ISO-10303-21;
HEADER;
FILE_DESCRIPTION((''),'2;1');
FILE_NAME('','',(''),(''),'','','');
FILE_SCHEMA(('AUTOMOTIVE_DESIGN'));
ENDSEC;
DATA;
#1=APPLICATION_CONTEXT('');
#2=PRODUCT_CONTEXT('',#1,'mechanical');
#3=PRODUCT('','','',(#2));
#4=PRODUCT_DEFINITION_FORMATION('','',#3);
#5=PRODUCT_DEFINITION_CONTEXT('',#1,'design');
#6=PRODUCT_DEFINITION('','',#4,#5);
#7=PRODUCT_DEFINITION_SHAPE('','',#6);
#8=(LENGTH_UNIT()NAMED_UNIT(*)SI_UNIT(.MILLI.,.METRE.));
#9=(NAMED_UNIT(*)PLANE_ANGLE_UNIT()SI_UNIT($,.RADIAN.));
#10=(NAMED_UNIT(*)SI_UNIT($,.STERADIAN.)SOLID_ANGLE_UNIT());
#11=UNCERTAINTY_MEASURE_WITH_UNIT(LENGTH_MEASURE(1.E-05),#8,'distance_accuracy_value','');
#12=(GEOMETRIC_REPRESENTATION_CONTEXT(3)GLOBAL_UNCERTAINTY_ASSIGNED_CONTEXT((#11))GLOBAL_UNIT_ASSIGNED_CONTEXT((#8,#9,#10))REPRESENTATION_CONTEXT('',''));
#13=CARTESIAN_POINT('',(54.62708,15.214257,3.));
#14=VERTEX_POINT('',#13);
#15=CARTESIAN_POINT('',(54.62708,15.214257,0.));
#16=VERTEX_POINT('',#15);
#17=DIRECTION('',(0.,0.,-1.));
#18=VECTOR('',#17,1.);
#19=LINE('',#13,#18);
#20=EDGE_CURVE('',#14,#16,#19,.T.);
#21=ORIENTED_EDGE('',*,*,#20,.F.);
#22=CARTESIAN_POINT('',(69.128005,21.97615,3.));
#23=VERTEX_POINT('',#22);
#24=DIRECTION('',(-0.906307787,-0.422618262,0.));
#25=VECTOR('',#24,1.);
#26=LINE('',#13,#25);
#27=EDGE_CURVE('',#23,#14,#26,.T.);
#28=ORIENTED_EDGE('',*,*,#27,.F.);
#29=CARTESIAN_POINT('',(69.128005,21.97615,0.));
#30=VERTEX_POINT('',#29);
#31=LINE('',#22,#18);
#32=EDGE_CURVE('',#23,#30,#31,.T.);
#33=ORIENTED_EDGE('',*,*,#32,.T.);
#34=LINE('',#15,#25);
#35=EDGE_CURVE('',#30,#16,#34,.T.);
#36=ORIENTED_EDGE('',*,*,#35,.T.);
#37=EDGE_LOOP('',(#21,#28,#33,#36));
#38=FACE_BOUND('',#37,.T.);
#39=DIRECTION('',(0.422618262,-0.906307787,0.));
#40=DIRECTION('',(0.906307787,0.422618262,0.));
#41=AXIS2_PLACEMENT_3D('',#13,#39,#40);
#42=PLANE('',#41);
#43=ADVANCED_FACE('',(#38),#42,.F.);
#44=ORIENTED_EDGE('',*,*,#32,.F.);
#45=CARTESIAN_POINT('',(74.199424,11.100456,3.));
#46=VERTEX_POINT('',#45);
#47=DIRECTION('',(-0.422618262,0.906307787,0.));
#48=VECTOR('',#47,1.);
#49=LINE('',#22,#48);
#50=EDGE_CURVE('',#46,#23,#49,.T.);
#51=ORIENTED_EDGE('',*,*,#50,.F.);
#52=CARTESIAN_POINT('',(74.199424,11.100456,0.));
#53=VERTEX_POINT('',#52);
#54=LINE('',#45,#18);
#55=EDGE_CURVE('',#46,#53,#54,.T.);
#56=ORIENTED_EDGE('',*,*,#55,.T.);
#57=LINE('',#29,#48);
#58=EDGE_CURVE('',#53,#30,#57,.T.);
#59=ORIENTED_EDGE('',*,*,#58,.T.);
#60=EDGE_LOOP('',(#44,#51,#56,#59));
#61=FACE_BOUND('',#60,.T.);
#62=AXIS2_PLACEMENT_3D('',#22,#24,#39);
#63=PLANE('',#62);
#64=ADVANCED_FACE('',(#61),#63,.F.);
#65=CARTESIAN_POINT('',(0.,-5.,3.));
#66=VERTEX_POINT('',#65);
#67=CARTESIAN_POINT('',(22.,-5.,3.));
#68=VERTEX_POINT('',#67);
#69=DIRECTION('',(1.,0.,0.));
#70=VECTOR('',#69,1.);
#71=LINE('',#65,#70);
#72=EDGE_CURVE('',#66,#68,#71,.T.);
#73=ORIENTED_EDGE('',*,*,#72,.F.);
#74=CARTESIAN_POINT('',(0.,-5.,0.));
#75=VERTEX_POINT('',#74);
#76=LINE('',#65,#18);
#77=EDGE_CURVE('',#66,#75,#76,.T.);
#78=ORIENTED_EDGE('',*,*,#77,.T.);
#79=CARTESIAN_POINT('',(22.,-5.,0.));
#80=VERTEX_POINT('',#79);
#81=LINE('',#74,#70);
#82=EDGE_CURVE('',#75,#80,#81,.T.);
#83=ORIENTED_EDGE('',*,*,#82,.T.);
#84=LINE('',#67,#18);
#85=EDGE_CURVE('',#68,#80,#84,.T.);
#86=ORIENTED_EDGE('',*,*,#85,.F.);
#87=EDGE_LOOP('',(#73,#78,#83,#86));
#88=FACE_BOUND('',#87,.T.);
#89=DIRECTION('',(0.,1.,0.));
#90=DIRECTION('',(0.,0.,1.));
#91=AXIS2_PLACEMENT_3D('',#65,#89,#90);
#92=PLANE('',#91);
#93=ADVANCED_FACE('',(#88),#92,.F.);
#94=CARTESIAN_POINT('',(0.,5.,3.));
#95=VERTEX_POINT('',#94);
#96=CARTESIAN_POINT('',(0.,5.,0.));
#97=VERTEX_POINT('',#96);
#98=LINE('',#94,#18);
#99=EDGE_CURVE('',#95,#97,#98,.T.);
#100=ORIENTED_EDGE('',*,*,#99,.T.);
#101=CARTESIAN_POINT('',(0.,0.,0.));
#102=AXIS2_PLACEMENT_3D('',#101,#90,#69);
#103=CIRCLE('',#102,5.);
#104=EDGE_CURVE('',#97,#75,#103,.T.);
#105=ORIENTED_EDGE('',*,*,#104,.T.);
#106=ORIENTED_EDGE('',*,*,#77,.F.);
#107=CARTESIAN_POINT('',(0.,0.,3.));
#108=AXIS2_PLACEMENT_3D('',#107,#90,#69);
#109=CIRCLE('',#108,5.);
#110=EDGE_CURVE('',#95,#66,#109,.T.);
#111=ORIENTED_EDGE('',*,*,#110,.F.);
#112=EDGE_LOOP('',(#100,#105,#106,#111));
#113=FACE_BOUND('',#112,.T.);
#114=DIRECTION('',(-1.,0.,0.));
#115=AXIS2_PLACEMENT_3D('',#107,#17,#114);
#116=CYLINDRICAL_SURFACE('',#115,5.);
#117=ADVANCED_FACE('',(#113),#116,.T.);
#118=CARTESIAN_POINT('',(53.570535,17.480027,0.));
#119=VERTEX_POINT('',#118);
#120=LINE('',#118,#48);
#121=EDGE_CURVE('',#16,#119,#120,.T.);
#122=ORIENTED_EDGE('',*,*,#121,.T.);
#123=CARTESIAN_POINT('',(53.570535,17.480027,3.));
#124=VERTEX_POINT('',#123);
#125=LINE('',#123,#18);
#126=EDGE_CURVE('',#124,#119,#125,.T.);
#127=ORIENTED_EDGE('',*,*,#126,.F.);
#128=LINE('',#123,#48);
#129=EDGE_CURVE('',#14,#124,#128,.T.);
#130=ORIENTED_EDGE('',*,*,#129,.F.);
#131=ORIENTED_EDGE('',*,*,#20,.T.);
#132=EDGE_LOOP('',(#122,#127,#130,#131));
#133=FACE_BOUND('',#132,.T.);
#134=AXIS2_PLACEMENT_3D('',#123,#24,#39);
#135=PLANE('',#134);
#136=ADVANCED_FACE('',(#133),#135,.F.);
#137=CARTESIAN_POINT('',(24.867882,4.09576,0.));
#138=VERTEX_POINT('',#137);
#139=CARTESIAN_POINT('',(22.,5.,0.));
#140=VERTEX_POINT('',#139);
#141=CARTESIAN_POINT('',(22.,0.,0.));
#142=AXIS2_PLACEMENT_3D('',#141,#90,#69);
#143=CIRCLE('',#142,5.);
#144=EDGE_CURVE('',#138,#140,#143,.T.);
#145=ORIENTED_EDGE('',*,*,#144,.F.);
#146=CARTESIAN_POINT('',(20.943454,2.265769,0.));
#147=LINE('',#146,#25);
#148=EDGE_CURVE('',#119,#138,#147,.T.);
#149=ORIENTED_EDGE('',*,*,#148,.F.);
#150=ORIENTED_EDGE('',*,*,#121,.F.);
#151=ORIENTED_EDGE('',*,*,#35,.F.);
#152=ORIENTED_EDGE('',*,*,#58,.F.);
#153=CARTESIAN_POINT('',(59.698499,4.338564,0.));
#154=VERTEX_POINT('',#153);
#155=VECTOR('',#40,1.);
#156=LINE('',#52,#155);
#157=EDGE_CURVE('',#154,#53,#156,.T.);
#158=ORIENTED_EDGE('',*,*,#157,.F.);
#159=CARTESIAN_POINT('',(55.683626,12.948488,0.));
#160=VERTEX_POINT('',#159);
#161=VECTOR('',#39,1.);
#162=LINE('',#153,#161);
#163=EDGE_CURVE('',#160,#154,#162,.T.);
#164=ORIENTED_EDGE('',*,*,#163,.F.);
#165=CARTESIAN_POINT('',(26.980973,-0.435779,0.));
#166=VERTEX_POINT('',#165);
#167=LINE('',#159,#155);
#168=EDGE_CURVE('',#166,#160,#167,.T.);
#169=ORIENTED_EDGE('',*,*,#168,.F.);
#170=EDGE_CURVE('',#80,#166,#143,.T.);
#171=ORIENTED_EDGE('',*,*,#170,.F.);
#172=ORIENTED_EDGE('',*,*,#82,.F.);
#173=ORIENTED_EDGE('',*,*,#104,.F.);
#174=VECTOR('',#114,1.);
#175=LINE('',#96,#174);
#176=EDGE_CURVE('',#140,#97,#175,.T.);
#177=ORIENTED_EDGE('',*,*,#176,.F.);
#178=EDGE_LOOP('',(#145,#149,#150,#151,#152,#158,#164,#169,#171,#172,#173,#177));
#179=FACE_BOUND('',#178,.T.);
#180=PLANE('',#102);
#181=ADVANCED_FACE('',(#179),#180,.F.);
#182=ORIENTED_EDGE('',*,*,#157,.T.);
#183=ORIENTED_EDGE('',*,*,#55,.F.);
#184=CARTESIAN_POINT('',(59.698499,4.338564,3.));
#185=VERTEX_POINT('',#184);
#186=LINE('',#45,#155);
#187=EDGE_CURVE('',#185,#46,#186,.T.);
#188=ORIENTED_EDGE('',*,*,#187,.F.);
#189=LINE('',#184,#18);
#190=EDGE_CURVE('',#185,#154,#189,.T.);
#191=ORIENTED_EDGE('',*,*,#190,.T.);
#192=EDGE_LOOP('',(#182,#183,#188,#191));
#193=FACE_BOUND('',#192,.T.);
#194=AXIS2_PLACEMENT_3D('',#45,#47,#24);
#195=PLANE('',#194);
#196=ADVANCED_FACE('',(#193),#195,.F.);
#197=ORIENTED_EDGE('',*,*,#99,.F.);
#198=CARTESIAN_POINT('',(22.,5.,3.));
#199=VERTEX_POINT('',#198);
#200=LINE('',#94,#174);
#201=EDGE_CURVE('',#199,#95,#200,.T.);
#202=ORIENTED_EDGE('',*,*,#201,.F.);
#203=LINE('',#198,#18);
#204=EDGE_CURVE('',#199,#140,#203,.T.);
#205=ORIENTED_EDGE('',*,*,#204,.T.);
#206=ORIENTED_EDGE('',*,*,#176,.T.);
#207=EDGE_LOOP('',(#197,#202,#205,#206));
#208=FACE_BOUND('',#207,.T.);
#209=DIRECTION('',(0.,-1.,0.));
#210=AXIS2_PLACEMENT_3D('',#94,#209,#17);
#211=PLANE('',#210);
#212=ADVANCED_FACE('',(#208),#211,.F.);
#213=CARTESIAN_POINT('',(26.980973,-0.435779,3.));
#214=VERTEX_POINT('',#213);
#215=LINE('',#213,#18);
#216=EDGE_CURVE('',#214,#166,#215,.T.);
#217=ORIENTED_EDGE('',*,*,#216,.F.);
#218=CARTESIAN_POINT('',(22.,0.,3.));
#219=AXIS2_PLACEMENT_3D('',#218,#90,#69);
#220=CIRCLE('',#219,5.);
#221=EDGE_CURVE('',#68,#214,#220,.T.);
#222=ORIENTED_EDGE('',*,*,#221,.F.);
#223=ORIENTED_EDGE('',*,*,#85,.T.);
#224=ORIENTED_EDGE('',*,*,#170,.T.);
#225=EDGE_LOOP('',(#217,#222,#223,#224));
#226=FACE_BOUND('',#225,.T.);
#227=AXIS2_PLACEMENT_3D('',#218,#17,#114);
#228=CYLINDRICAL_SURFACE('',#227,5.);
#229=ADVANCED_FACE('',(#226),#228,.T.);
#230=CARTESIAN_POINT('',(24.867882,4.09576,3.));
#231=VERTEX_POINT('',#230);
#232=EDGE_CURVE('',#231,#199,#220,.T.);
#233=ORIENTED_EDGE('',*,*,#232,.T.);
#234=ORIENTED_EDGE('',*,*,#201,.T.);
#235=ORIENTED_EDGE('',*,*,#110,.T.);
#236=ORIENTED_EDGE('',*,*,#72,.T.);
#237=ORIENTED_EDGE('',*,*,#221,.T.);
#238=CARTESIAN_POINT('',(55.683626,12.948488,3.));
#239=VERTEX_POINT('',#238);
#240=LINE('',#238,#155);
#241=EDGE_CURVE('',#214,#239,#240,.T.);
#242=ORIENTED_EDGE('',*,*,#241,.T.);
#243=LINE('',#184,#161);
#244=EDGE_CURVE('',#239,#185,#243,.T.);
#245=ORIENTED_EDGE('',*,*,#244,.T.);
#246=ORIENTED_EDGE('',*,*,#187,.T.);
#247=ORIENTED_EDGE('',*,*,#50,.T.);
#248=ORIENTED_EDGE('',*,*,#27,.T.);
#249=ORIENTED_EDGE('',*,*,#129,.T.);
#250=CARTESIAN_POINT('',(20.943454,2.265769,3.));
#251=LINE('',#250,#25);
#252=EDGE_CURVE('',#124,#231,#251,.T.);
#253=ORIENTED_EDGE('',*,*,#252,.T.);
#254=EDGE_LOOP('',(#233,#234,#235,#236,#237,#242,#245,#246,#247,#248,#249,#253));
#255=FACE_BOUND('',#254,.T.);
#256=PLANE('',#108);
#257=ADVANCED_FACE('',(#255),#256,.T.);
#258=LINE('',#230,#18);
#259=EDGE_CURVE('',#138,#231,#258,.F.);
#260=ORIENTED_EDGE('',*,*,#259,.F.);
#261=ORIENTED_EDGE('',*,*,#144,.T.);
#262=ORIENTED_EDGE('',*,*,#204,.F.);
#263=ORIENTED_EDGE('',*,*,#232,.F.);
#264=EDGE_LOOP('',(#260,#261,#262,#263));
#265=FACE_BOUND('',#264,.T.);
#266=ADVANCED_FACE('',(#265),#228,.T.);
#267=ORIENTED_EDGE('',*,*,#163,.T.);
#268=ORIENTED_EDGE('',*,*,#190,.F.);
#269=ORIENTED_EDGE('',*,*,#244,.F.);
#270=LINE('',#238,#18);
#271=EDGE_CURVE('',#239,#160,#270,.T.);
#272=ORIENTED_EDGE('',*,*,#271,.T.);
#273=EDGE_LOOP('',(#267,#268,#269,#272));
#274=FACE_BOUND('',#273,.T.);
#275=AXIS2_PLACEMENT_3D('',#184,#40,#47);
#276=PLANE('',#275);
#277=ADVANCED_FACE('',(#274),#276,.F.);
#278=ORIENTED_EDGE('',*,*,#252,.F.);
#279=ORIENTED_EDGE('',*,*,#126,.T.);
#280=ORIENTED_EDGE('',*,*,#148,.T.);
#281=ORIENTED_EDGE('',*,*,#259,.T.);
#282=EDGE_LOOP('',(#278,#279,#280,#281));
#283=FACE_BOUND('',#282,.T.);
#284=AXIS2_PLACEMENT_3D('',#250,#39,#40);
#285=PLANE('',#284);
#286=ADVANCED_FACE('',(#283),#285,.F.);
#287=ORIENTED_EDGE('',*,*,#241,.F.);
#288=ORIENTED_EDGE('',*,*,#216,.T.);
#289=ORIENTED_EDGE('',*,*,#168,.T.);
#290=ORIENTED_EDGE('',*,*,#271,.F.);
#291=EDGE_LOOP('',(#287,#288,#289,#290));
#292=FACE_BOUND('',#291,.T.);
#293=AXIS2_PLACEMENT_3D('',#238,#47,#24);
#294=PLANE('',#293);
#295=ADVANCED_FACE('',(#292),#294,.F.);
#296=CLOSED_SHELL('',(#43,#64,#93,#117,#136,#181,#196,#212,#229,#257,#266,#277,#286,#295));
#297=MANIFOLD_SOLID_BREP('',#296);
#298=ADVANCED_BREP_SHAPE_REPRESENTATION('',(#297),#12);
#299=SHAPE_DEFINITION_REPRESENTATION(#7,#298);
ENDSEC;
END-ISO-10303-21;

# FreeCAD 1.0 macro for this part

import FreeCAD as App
import Part
import Sketcher
from FreeCAD import Vector
Q = App.Units.Quantity


def add_polygon(sketch, points):
    """Adds a closed chain of lines whose ends are joined by coincident constraints."""
    first, n = sketch.GeometryCount, len(points)
    for a, b in zip(points, points[1:] + points[:1]):
        sketch.addGeometry(Part.LineSegment(App.Vector(*a, 0), App.Vector(*b, 0)), False)
    for i in range(n):
        sketch.addConstraint(Sketcher.Constraint("Coincident", first + i, 2, first + (i + 1) % n, 1))

doc = App.newDocument("Part")
body = doc.addObject("PartDesign::Body", "Body")

sketch1 = doc.addObject("Sketcher::SketchObject", "Sketch")
body.addObject(sketch1)
sketch1.AttachmentSupport = (doc.XY_Plane, [""])
sketch1.MapMode = "FlatFace"
sketch1.addGeometry(Part.Circle(Vector(0, 0, 0), Vector(0, 0, 1), 5), False)
sketch1.addConstraint([
    Sketcher.Constraint("Coincident", 0, 3, -1, 1),
    Sketcher.Constraint("Diameter", 0, Q("10 mm")),
])
pad1 = doc.addObject("PartDesign::Pad", "Pad")
body.addObject(pad1)
pad1.Profile = sketch1
pad1.Length = 3

sketch2 = doc.addObject("Sketcher::SketchObject", "Sketch001")
body.addObject(sketch2)
sketch2.AttachmentSupport = (doc.XY_Plane, [""])
sketch2.MapMode = "FlatFace"
add_polygon(sketch2, [(0, 5), (0, -5), (22, -5), (22, 5)])
sketch2.addConstraint([
    Sketcher.Constraint("Vertical", 0),
    Sketcher.Constraint("Horizontal", 1),
    Sketcher.Constraint("Vertical", 2),
    Sketcher.Constraint("Horizontal", 3),
    Sketcher.Constraint("Symmetric", 0, 2, 3, 2, -1, 1),
    Sketcher.Constraint("DistanceX", 1, 1, 1, 2, Q("22 mm")),
    Sketcher.Constraint("DistanceY", 0, 2, 0, 1, Q("10 mm")),
])
pad2 = doc.addObject("PartDesign::Pad", "Pad001")
body.addObject(pad2)
pad2.Profile = sketch2
pad2.Length = 3

sketch3 = doc.addObject("Sketcher::SketchObject", "Sketch002")
body.addObject(sketch3)
sketch3.AttachmentSupport = (doc.XY_Plane, [""])
sketch3.MapMode = "FlatFace"
sketch3.addGeometry(Part.Circle(Vector(22, 0, 0), Vector(0, 0, 1), 5), False)
sketch3.addConstraint([
    Sketcher.Constraint("PointOnObject", 0, 3, -1),
    Sketcher.Constraint("Diameter", 0, Q("10 mm")),
    Sketcher.Constraint("DistanceX", -1, 1, 0, 3, Q("22 mm")),
])
pad3 = doc.addObject("PartDesign::Pad", "Pad002")
body.addObject(pad3)
pad3.Profile = sketch3
pad3.Length = 3

sketch4 = doc.addObject("Sketcher::SketchObject", "Sketch003")
body.addObject(sketch4)
sketch4.AttachmentSupport = (doc.XY_Plane, [""])
sketch4.MapMode = "FlatFace"
add_polygon(sketch4, [(53.6, 17.5), (20.9, 2.3), (23.1, -2.3), (55.7, 12.9)])
sketch4.addConstraint([
    Sketcher.Constraint("Perpendicular", 0, 1),
    Sketcher.Constraint("Perpendicular", 1, 2),
    Sketcher.Constraint("Perpendicular", 2, 3),
    Sketcher.Constraint("Angle", 0, Q("-155 deg")),
    Sketcher.Constraint("Distance", 0, Q("36 mm")),
    Sketcher.Constraint("Distance", 1, Q("5 mm")),
    Sketcher.Constraint("DistanceY", -1, 1, 0, 2, Q("2.265769 mm")),
    Sketcher.Constraint("DistanceX", -1, 1, 0, 2, Q("20.943454 mm")),
])
pad4 = doc.addObject("PartDesign::Pad", "Pad003")
body.addObject(pad4)
pad4.Profile = sketch4
pad4.Length = 3

sketch5 = doc.addObject("Sketcher::SketchObject", "Sketch004")
body.addObject(sketch5)
sketch5.AttachmentSupport = (doc.XY_Plane, [""])
sketch5.MapMode = "FlatFace"
add_polygon(sketch5, [(69, 22), (55, 15), (60, 4), (74, 11)])
sketch5.addConstraint([
    Sketcher.Constraint("Perpendicular", 0, 1),
    Sketcher.Constraint("Perpendicular", 1, 2),
    Sketcher.Constraint("Perpendicular", 2, 3),
    Sketcher.Constraint("Angle", 0, Q("-155 deg")),
    Sketcher.Constraint("Distance", 0, Q("16 mm")),
    Sketcher.Constraint("Distance", 1, Q("12 mm")),
    Sketcher.Constraint("DistanceX", -1, 1, 1, 2, Q("59.698499 mm")),
    Sketcher.Constraint("DistanceY", -1, 1, 3, 2, Q("21.97615 mm")),
])
pad5 = doc.addObject("PartDesign::Pad", "Pad004")
body.addObject(pad5)
pad5.Profile = sketch5
pad5.Length = 3

doc.recompute()
